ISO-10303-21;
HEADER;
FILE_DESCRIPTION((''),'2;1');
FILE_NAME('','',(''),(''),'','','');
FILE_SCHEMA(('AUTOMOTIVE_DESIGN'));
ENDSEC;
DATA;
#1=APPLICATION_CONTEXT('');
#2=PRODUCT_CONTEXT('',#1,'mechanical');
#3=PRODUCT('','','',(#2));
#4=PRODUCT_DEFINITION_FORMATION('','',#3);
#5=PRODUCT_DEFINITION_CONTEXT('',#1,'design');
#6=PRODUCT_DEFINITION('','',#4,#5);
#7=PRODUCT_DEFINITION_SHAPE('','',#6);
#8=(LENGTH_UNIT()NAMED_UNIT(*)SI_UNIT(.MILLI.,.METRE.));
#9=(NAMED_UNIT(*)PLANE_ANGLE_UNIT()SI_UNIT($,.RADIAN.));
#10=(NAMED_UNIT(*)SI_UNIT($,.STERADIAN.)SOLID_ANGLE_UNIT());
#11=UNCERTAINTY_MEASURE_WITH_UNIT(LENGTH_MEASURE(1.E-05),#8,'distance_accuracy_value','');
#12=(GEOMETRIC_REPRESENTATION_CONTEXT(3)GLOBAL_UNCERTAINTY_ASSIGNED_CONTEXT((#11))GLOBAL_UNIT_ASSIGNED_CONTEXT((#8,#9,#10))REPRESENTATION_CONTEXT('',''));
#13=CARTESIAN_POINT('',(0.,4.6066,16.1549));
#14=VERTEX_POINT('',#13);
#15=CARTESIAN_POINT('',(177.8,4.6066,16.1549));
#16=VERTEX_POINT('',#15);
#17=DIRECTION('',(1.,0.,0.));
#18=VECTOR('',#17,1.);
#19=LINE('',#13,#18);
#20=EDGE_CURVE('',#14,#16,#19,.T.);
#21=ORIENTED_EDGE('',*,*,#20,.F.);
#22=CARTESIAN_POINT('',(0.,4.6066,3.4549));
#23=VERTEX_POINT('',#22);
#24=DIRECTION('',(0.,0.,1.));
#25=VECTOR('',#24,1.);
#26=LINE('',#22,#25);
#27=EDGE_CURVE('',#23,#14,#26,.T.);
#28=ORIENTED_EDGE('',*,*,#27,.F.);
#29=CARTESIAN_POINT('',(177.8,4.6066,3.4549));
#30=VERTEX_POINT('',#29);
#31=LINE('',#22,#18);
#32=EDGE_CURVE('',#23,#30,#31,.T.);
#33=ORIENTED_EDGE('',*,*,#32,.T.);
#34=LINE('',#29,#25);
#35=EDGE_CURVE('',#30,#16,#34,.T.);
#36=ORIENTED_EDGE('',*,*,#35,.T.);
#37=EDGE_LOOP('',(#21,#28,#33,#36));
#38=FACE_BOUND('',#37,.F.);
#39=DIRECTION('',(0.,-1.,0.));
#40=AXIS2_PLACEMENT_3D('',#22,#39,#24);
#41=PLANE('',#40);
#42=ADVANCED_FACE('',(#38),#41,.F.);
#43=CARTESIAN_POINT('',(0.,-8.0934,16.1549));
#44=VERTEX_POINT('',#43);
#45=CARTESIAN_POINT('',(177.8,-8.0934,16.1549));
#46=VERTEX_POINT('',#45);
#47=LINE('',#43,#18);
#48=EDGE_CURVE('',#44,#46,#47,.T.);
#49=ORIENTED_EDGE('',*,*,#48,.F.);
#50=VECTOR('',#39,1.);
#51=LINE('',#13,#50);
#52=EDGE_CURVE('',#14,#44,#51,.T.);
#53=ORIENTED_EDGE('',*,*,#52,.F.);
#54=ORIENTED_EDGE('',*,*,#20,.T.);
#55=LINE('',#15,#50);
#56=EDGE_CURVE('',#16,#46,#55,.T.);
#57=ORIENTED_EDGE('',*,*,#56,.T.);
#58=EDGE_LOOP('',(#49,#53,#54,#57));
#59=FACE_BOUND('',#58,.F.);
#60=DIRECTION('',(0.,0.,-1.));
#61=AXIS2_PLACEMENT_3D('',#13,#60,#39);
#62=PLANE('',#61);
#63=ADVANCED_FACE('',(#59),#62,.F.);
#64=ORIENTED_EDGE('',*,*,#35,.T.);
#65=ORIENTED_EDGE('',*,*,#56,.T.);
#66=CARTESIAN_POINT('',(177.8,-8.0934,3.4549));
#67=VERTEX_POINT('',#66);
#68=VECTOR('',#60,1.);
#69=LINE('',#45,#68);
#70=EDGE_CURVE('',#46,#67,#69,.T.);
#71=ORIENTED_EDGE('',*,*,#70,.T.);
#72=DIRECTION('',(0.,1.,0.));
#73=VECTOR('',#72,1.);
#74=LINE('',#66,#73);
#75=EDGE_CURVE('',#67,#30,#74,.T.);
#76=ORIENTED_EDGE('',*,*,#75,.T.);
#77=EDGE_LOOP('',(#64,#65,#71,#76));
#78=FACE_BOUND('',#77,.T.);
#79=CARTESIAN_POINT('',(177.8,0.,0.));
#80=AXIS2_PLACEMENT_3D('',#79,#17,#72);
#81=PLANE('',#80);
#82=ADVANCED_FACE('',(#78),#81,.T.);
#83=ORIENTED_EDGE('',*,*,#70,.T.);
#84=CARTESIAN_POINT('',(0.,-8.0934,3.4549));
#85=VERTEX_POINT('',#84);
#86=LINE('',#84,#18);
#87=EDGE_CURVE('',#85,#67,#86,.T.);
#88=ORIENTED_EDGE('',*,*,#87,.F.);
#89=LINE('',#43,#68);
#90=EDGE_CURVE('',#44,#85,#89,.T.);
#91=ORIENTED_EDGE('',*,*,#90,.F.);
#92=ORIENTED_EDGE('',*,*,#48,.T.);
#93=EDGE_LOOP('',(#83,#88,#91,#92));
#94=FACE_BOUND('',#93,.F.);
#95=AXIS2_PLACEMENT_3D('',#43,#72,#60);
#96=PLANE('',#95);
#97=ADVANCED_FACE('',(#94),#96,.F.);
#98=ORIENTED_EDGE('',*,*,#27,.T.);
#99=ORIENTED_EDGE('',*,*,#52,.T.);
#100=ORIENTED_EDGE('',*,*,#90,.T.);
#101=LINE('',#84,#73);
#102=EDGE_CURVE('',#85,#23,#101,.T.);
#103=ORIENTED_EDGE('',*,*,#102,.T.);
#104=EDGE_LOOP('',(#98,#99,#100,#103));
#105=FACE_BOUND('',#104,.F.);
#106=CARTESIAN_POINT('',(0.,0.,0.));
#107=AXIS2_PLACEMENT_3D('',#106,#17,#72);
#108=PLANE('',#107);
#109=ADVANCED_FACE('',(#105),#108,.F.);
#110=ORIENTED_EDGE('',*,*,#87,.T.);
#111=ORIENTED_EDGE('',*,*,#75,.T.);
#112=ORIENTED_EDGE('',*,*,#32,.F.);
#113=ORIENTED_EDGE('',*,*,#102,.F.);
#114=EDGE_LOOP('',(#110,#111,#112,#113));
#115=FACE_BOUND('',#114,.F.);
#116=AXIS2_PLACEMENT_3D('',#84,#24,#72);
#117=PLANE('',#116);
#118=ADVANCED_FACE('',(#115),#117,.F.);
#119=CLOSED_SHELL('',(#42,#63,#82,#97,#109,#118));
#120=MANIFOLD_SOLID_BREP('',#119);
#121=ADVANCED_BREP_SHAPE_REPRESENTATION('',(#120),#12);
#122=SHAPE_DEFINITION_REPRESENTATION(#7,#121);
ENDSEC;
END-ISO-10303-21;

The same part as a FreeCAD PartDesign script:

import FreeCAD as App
import Part
import Sketcher
from FreeCAD import Vector
Q = App.Units.Quantity

doc = App.newDocument("Part")
body = doc.addObject("PartDesign::Body", "Body")

# Sketch on YZ plane
sketch1 = body.newObject("Sketcher::SketchObject", "Sketch")
sketch1.AttachmentSupport = (doc.getObject("YZ_Plane"), [""])
sketch1.MapMode = "FlatFace"
sketch1.addGeometry([
    Part.LineSegment(Vector(5, 3, 0), Vector(5, 16, 0)),
    Part.LineSegment(Vector(5, 16, 0), Vector(-8, 16, 0)),
    Part.LineSegment(Vector(-8, 16, 0), Vector(-8, 3, 0)),
    Part.LineSegment(Vector(-8, 3, 0), Vector(5, 3, 0)),
], False)
sketch1.addConstraint([
    Sketcher.Constraint("Coincident", 0, 2, 1, 1),
    Sketcher.Constraint("Coincident", 1, 2, 2, 1),
    Sketcher.Constraint("Coincident", 2, 2, 3, 1),
    Sketcher.Constraint("Coincident", 3, 2, 0, 1),
    Sketcher.Constraint("Vertical", 0),
    Sketcher.Constraint("Horizontal", 1),
    Sketcher.Constraint("Vertical", 2),
    Sketcher.Constraint("Horizontal", 3),
    Sketcher.Constraint("Equal", 3, 0),
    Sketcher.Constraint("DistanceX", 1, 2, 1, 1, Q("0.5 in")),
    Sketcher.Constraint("DistanceX", -1, 1, 0, 2, Q("4.6066 mm")),
    Sketcher.Constraint("DistanceY", -1, 1, 0, 2, Q("16.155 mm")),
])
pad1 = body.newObject("PartDesign::Pad", "Pad")
pad1.Profile = sketch1
pad1.Length = Q("7 in")

doc.recompute()
